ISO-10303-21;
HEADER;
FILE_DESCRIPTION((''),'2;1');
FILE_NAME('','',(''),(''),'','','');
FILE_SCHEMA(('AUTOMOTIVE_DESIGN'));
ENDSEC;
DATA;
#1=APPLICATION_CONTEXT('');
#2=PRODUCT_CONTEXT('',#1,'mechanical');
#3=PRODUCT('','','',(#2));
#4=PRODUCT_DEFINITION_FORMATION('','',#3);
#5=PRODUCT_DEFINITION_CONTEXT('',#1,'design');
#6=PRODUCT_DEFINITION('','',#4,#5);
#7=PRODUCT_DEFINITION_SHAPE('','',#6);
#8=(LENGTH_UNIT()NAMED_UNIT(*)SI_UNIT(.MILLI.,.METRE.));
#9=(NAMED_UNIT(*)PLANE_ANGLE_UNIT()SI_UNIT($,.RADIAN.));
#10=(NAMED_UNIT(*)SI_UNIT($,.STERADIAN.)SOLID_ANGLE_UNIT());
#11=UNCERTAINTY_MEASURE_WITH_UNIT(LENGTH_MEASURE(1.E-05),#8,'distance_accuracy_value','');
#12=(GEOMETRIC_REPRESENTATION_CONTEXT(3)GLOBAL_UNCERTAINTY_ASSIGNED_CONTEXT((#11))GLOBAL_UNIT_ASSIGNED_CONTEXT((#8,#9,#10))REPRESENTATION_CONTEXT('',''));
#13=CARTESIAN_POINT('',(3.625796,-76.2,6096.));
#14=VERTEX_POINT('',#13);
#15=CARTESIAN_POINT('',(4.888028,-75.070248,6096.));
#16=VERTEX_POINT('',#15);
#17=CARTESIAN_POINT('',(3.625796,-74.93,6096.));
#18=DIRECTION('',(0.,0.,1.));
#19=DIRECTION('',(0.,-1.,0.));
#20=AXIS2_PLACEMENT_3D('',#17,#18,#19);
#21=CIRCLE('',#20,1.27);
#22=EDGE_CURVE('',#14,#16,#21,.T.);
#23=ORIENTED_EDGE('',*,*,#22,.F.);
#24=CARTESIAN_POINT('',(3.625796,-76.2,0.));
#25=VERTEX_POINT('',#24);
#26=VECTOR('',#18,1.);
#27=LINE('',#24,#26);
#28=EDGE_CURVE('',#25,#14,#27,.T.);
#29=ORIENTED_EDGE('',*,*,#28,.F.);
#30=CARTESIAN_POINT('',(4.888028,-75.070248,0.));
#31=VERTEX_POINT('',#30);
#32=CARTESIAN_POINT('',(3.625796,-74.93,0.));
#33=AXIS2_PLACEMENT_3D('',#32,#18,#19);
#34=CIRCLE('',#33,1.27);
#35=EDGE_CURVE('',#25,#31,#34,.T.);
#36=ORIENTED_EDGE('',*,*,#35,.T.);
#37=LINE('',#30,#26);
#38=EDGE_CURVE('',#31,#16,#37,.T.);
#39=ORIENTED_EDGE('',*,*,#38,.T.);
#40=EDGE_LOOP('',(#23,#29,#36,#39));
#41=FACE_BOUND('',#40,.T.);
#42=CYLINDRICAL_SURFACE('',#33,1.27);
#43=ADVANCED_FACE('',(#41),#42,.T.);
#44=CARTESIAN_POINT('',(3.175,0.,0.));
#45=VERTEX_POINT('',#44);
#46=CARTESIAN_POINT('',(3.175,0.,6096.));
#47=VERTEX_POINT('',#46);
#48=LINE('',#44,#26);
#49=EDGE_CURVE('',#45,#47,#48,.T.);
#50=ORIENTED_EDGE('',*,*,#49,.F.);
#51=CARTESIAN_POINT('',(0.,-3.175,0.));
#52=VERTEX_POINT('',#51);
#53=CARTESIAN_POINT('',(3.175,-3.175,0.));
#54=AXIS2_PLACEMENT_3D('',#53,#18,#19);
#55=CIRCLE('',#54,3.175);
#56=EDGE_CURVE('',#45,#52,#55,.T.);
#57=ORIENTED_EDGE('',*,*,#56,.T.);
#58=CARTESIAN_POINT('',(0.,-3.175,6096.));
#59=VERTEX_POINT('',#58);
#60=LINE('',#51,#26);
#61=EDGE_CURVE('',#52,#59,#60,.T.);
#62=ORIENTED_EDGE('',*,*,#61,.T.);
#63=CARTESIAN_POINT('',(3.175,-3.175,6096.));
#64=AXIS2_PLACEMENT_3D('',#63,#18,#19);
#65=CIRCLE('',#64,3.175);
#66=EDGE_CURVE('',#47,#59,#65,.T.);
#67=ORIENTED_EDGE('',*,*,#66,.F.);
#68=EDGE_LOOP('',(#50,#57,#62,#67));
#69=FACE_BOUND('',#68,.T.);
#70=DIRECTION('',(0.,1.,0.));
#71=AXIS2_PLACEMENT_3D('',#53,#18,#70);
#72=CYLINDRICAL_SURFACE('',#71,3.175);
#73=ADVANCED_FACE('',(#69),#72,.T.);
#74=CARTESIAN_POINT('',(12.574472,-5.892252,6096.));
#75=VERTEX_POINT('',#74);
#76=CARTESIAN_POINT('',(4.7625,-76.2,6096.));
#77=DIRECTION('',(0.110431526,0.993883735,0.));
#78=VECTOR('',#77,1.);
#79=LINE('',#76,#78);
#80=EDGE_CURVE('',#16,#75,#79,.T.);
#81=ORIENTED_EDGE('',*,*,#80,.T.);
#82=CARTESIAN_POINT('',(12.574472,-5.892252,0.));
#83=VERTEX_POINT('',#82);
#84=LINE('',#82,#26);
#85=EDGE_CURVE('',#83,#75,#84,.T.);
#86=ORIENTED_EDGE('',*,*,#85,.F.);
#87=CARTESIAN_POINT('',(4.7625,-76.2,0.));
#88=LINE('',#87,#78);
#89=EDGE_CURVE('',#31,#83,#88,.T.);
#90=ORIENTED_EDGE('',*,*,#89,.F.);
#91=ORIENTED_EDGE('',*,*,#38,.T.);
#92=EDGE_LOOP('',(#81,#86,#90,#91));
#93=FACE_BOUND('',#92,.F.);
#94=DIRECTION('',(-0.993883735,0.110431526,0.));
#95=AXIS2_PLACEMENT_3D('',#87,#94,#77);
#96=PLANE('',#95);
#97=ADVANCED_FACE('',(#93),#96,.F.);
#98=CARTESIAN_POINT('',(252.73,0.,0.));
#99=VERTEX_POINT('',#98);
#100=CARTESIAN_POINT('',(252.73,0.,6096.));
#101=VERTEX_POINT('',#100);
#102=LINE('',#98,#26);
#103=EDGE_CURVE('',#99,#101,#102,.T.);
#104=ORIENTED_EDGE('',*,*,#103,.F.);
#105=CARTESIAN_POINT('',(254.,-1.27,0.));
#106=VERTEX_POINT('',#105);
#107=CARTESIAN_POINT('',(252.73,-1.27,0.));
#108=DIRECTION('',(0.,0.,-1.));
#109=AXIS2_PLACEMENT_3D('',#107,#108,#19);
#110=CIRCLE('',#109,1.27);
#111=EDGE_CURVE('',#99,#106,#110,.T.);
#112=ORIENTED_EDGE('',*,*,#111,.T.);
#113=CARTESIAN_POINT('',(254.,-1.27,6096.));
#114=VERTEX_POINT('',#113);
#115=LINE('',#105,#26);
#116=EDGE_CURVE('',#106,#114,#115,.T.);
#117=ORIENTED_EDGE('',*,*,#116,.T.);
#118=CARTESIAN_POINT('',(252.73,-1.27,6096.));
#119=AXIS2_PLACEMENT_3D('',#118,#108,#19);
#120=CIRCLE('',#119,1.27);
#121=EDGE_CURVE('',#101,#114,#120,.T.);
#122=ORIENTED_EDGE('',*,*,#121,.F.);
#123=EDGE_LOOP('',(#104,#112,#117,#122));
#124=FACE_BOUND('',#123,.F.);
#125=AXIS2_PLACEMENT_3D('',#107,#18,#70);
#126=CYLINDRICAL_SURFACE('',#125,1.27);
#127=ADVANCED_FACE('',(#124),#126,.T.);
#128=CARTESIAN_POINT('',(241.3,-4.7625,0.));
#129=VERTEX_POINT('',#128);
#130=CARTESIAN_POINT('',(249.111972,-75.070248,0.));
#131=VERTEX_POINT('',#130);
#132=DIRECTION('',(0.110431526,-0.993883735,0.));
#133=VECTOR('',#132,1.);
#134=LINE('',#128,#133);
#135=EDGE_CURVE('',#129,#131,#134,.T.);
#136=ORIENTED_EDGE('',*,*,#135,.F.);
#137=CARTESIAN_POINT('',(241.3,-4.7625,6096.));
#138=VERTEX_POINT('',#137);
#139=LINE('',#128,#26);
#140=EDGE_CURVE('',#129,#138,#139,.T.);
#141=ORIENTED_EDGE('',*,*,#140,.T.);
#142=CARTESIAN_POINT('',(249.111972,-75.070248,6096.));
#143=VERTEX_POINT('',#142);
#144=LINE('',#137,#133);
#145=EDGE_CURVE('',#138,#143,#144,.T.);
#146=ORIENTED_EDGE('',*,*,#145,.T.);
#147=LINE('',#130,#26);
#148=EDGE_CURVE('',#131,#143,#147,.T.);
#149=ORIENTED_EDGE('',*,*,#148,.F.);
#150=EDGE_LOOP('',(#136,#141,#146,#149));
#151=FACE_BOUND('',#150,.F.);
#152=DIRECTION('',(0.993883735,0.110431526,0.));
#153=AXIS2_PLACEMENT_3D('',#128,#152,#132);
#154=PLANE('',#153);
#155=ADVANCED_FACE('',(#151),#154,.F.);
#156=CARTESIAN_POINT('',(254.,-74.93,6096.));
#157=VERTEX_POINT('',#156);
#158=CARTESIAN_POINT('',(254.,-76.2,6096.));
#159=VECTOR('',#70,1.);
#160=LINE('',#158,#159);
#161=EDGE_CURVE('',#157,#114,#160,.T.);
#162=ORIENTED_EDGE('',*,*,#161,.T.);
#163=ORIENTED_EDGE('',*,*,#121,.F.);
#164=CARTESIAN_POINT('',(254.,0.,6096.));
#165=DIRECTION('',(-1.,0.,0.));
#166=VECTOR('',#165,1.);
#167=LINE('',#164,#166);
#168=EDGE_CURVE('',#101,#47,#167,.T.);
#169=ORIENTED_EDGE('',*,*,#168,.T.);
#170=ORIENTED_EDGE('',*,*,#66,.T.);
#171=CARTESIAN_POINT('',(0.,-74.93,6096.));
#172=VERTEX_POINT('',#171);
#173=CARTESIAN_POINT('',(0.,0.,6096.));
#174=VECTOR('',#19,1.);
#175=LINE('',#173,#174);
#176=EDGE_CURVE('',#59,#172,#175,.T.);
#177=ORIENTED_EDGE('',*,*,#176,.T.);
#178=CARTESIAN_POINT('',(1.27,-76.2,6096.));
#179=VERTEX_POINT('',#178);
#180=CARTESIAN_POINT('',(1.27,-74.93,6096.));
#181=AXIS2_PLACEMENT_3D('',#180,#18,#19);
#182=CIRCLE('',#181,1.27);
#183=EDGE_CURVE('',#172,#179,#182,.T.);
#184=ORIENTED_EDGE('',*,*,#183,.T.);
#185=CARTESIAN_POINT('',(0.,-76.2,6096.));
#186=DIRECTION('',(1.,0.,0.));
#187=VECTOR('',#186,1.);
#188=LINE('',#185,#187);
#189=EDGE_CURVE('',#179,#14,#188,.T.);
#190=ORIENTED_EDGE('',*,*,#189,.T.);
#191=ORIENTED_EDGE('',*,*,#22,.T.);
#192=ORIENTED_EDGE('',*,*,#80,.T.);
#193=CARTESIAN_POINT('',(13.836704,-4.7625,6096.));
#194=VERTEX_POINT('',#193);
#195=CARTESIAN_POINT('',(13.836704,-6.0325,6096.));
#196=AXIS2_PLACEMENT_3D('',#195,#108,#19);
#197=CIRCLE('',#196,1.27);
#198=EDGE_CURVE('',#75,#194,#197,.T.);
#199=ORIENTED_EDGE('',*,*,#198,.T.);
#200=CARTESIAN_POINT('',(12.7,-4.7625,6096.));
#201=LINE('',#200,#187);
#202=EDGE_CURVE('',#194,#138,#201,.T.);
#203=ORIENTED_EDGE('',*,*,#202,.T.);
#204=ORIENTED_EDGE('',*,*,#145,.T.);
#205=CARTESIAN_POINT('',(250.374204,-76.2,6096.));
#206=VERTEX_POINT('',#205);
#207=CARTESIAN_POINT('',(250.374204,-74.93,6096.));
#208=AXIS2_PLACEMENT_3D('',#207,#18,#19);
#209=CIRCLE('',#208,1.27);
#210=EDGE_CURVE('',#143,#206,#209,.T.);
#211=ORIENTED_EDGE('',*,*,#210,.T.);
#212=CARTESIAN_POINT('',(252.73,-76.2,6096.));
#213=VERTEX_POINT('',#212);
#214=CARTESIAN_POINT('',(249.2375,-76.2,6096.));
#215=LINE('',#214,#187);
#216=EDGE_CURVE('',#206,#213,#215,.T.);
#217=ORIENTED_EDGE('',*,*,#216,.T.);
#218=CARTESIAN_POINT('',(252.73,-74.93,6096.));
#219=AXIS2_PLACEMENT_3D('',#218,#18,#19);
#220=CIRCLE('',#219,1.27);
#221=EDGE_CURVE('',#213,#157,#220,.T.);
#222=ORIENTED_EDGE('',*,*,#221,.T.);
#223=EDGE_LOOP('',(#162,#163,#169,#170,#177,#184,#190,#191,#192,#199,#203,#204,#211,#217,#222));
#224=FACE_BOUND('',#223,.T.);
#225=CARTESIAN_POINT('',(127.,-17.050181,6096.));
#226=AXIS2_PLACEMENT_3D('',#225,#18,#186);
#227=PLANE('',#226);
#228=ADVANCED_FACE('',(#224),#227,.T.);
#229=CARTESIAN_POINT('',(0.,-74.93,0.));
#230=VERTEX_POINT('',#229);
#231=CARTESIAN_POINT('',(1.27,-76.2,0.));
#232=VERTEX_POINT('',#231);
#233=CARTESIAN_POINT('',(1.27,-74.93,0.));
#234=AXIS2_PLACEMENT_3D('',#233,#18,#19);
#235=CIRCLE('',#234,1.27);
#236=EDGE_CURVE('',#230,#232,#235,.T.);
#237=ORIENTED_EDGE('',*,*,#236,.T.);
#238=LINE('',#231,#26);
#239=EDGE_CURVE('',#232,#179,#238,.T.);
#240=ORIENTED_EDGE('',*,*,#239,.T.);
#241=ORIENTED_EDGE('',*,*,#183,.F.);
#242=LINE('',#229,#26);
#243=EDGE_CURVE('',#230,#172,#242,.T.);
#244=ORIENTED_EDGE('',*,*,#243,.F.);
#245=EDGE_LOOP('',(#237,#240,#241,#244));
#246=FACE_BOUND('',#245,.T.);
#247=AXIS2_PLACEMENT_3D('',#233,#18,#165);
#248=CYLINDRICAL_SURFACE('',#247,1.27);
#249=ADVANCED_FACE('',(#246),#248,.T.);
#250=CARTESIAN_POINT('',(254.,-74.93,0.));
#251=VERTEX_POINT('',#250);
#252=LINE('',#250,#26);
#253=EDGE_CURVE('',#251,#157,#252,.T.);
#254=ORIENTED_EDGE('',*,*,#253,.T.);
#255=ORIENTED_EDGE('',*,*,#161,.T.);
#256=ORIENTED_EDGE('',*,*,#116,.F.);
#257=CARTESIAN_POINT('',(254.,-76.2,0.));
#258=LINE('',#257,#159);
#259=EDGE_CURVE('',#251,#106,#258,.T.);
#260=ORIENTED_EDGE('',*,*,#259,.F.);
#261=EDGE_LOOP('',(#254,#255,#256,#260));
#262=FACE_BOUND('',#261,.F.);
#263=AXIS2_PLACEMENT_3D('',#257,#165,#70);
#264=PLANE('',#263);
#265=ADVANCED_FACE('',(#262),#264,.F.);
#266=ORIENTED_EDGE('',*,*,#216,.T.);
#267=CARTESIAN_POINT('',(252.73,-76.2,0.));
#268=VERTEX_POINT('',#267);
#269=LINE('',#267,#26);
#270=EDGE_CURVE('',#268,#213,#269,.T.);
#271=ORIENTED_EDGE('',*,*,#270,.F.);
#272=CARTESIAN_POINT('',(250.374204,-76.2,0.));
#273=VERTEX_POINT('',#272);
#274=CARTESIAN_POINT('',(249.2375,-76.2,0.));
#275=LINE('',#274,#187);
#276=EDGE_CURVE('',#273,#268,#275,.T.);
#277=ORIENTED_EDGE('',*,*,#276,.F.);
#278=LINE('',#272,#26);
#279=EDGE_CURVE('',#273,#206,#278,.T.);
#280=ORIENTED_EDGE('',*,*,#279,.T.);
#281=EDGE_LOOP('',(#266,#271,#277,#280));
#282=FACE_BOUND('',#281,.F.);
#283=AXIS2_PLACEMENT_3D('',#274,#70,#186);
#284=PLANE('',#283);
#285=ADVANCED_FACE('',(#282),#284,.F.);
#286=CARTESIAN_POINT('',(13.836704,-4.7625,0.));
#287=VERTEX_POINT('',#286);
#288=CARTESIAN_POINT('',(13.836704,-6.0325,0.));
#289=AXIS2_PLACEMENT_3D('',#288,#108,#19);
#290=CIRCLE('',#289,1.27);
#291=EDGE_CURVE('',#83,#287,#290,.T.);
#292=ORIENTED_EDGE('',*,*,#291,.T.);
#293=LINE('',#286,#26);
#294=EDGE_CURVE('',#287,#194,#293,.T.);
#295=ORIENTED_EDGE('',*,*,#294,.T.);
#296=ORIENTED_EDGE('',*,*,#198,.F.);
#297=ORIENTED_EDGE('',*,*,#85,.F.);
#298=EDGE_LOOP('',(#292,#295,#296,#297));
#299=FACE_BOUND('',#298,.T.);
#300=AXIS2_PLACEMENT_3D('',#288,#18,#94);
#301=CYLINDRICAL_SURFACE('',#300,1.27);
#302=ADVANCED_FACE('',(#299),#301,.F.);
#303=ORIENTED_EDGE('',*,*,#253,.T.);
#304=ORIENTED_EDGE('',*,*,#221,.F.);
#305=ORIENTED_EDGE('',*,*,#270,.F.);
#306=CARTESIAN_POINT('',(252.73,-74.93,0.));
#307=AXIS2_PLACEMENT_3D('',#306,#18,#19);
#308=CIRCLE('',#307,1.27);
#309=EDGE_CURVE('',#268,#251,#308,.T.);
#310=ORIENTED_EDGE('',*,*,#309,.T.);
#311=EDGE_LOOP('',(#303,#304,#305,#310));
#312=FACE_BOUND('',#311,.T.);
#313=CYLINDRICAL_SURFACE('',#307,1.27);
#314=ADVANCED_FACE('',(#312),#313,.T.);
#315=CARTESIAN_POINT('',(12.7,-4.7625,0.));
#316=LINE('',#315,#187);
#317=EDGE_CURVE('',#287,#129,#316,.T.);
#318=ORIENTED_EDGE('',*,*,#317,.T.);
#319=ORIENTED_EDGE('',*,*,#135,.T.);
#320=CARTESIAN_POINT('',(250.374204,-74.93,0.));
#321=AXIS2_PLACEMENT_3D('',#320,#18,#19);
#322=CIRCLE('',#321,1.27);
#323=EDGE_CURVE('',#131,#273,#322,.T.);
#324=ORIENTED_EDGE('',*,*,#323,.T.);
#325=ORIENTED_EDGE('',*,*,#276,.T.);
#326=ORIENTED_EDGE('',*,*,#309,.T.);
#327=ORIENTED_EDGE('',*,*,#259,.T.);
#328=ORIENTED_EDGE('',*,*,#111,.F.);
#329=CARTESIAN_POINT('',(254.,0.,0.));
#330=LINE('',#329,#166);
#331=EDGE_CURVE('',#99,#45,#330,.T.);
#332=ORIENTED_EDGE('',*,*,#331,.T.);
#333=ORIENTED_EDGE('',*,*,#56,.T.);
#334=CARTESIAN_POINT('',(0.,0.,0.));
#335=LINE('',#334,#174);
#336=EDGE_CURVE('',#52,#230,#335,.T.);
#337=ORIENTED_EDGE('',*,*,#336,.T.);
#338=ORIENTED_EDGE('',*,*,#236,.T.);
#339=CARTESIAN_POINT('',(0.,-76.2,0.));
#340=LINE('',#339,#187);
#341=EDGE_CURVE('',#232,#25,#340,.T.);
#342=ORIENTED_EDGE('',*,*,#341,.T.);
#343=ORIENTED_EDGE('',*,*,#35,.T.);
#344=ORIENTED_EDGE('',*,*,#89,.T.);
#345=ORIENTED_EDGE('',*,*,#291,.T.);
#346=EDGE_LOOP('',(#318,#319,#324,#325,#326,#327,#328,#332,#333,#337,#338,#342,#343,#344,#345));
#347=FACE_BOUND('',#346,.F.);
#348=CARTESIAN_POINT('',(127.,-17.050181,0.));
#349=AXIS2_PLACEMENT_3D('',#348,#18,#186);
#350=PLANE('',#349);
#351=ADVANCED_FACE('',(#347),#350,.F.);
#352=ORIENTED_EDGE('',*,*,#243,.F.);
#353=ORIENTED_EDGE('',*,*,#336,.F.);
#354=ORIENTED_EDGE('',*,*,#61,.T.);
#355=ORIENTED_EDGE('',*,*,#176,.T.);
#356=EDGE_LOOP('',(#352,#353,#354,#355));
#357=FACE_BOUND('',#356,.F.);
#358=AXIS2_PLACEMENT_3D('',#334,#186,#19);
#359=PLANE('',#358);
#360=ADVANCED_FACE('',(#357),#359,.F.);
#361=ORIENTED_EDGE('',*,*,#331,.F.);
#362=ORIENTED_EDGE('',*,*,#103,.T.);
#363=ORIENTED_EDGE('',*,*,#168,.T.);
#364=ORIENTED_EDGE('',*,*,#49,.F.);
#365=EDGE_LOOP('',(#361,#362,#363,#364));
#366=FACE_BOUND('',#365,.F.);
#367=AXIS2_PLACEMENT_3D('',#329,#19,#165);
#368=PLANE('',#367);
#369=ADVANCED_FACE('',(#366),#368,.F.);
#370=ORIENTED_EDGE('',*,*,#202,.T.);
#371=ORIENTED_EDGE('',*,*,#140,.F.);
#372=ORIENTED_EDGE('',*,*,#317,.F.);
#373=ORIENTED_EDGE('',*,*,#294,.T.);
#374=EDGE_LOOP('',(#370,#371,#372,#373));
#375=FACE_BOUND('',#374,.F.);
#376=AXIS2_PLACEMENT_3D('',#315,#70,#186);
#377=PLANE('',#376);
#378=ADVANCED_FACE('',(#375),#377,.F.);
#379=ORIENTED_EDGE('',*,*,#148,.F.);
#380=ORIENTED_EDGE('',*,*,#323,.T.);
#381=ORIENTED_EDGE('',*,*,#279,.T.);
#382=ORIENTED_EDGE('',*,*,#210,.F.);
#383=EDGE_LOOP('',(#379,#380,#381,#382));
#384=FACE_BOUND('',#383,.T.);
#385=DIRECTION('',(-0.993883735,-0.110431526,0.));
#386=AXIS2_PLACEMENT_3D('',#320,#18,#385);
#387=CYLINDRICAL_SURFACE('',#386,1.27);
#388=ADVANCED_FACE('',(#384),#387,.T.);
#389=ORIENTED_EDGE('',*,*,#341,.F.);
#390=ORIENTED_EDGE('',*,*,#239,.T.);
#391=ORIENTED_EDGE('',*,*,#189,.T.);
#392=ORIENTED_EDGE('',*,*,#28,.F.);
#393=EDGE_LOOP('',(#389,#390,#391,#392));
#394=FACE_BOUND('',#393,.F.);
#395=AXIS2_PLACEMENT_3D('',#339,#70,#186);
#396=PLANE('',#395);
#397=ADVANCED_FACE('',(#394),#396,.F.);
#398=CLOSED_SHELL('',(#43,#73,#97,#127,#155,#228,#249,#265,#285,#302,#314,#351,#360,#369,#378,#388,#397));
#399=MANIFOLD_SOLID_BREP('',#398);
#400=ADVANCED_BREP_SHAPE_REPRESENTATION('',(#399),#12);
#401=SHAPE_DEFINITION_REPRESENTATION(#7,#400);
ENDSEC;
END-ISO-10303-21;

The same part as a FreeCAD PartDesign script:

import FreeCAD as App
import Part
import Sketcher
Q = App.Units.Quantity


def edges_at(feature, points):
    """Names of the edges that pass closest to the given points."""
    edges = feature.Shape.Edges
    near = lambda p: min(range(len(edges)), key=lambda i: edges[i].distToShape(Part.Vertex(*p))[0])
    return sorted({f"Edge{near(p) + 1}" for p in points})


def add_polygon(sketch, points):
    """Adds a closed chain of lines whose ends are joined by coincident constraints."""
    first, n = sketch.GeometryCount, len(points)
    for a, b in zip(points, points[1:] + points[:1]):
        sketch.addGeometry(Part.LineSegment(App.Vector(*a, 0), App.Vector(*b, 0)), False)
    for i in range(n):
        sketch.addConstraint(Sketcher.Constraint("Coincident", first + i, 2, first + (i + 1) % n, 1))

doc = App.newDocument("Part")
body = doc.addObject("PartDesign::Body", "Body")

sketch1 = doc.addObject("Sketcher::SketchObject", "Sketch")
body.addObject(sketch1)
sketch1.AttachmentSupport = (doc.XY_Plane, [""])
sketch1.MapMode = "FlatFace"
add_polygon(sketch1, [(254, 0), (0, 0), (0, -76.2), (4.8, -76.2), (12.7, -4.8), (241.3, -4.8), (249.2, -76.2), (254, -76.2)])
sketch1.addConstraint(Sketcher.Constraint("Horizontal", 0))
sketch1.addConstraint(Sketcher.Constraint("Vertical", 1))
sketch1.addConstraint(Sketcher.Constraint("Horizontal", 2))
sketch1.addConstraint(Sketcher.Constraint("Horizontal", 4))
sketch1.addConstraint(Sketcher.Constraint("Horizontal", 6))
sketch1.addConstraint(Sketcher.Constraint("Vertical", 7))
sketch1.addConstraint(Sketcher.Constraint("Coincident", 0, 2, -1, 1))
sketch1.addConstraint(Sketcher.Constraint("Horizontal", 2, 2, 5, 2))
sketch1.addConstraint(Sketcher.Constraint("Equal", 2, 6))
sketch1.addConstraint(Sketcher.Constraint("Equal", 3, 5))
sketch1.addConstraint(Sketcher.Constraint("DistanceX", 0, 2, 0, 1, Q("10 in")))
sketch1.addConstraint(Sketcher.Constraint("DistanceX", 4, 1, 4, 2, Q("9 in")))
sketch1.addConstraint(Sketcher.Constraint("DistanceY", 1, 2, 1, 1, Q("3 in")))
sketch1.addConstraint(Sketcher.Constraint("DistanceX", 2, 1, 2, 2, Q("0.1875 in")))
sketch1.addConstraint(Sketcher.Constraint("DistanceY", 3, 2, -1, 1, Q("0.1875 in")))
pad1 = doc.addObject("PartDesign::Pad", "Pad")
body.addObject(pad1)
pad1.Profile = sketch1
pad1.Length = Q("240 in")
doc.recompute()

fillet = doc.addObject("PartDesign::Fillet", "Fillet")
body.addObject(fillet)
fillet.Base = (pad1, edges_at(pad1, [
    (0, -76.2, 3048),
    (4.763, -76.2, 3048),
    (12.7, -4.763, 3048),
    (249.238, -76.2, 3048),
    (254, -76.2, 3048),
    (254, 0, 3048),
]))
fillet.Radius = Q("0.05 in")
doc.recompute()

fillet2 = doc.addObject("PartDesign::Fillet", "Fillet001")
body.addObject(fillet2)
fillet2.Base = (fillet, edges_at(fillet, [(0, 0, 3048)]))
fillet2.Radius = Q("0.125 in")

doc.recompute()
